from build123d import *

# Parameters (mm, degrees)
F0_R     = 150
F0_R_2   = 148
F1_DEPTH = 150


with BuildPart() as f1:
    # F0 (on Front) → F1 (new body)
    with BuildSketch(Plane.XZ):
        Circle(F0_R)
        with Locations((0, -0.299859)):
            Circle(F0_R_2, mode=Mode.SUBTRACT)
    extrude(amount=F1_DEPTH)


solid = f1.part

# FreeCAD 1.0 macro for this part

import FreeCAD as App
import Part
import Sketcher
from FreeCAD import Vector

doc = App.newDocument("Part")
body = doc.addObject("PartDesign::Body", "Body")

sketch1 = doc.addObject("Sketcher::SketchObject", "Sketch")
body.addObject(sketch1)
sketch1.AttachmentSupport = (doc.XZ_Plane, [""])
sketch1.MapMode = "FlatFace"
sketch1.addGeometry(Part.Circle(Vector(0, 0, 0), Vector(0, 0, 1), 150), False)
sketch1.addGeometry(Part.Circle(Vector(0, 0, 0), Vector(0, 0, 1), 148), False)
sketch1.addConstraint(Sketcher.Constraint("Coincident", 0, 3, -1, 1))
sketch1.addConstraint(Sketcher.Constraint("PointOnObject", 1, 3, -2))
sketch1.addConstraint(Sketcher.Constraint("Diameter", 0, 300.0))
sketch1.addConstraint(Sketcher.Constraint("Diameter", 1, 296.0))
sketch1.addConstraint(Sketcher.Constraint("DistanceY", 1, 3, -1, 1, 0.299859))
pad1 = doc.addObject("PartDesign::Pad", "Pad")
body.addObject(pad1)
pad1.Profile = sketch1
pad1.Length = 150

doc.recompute()
